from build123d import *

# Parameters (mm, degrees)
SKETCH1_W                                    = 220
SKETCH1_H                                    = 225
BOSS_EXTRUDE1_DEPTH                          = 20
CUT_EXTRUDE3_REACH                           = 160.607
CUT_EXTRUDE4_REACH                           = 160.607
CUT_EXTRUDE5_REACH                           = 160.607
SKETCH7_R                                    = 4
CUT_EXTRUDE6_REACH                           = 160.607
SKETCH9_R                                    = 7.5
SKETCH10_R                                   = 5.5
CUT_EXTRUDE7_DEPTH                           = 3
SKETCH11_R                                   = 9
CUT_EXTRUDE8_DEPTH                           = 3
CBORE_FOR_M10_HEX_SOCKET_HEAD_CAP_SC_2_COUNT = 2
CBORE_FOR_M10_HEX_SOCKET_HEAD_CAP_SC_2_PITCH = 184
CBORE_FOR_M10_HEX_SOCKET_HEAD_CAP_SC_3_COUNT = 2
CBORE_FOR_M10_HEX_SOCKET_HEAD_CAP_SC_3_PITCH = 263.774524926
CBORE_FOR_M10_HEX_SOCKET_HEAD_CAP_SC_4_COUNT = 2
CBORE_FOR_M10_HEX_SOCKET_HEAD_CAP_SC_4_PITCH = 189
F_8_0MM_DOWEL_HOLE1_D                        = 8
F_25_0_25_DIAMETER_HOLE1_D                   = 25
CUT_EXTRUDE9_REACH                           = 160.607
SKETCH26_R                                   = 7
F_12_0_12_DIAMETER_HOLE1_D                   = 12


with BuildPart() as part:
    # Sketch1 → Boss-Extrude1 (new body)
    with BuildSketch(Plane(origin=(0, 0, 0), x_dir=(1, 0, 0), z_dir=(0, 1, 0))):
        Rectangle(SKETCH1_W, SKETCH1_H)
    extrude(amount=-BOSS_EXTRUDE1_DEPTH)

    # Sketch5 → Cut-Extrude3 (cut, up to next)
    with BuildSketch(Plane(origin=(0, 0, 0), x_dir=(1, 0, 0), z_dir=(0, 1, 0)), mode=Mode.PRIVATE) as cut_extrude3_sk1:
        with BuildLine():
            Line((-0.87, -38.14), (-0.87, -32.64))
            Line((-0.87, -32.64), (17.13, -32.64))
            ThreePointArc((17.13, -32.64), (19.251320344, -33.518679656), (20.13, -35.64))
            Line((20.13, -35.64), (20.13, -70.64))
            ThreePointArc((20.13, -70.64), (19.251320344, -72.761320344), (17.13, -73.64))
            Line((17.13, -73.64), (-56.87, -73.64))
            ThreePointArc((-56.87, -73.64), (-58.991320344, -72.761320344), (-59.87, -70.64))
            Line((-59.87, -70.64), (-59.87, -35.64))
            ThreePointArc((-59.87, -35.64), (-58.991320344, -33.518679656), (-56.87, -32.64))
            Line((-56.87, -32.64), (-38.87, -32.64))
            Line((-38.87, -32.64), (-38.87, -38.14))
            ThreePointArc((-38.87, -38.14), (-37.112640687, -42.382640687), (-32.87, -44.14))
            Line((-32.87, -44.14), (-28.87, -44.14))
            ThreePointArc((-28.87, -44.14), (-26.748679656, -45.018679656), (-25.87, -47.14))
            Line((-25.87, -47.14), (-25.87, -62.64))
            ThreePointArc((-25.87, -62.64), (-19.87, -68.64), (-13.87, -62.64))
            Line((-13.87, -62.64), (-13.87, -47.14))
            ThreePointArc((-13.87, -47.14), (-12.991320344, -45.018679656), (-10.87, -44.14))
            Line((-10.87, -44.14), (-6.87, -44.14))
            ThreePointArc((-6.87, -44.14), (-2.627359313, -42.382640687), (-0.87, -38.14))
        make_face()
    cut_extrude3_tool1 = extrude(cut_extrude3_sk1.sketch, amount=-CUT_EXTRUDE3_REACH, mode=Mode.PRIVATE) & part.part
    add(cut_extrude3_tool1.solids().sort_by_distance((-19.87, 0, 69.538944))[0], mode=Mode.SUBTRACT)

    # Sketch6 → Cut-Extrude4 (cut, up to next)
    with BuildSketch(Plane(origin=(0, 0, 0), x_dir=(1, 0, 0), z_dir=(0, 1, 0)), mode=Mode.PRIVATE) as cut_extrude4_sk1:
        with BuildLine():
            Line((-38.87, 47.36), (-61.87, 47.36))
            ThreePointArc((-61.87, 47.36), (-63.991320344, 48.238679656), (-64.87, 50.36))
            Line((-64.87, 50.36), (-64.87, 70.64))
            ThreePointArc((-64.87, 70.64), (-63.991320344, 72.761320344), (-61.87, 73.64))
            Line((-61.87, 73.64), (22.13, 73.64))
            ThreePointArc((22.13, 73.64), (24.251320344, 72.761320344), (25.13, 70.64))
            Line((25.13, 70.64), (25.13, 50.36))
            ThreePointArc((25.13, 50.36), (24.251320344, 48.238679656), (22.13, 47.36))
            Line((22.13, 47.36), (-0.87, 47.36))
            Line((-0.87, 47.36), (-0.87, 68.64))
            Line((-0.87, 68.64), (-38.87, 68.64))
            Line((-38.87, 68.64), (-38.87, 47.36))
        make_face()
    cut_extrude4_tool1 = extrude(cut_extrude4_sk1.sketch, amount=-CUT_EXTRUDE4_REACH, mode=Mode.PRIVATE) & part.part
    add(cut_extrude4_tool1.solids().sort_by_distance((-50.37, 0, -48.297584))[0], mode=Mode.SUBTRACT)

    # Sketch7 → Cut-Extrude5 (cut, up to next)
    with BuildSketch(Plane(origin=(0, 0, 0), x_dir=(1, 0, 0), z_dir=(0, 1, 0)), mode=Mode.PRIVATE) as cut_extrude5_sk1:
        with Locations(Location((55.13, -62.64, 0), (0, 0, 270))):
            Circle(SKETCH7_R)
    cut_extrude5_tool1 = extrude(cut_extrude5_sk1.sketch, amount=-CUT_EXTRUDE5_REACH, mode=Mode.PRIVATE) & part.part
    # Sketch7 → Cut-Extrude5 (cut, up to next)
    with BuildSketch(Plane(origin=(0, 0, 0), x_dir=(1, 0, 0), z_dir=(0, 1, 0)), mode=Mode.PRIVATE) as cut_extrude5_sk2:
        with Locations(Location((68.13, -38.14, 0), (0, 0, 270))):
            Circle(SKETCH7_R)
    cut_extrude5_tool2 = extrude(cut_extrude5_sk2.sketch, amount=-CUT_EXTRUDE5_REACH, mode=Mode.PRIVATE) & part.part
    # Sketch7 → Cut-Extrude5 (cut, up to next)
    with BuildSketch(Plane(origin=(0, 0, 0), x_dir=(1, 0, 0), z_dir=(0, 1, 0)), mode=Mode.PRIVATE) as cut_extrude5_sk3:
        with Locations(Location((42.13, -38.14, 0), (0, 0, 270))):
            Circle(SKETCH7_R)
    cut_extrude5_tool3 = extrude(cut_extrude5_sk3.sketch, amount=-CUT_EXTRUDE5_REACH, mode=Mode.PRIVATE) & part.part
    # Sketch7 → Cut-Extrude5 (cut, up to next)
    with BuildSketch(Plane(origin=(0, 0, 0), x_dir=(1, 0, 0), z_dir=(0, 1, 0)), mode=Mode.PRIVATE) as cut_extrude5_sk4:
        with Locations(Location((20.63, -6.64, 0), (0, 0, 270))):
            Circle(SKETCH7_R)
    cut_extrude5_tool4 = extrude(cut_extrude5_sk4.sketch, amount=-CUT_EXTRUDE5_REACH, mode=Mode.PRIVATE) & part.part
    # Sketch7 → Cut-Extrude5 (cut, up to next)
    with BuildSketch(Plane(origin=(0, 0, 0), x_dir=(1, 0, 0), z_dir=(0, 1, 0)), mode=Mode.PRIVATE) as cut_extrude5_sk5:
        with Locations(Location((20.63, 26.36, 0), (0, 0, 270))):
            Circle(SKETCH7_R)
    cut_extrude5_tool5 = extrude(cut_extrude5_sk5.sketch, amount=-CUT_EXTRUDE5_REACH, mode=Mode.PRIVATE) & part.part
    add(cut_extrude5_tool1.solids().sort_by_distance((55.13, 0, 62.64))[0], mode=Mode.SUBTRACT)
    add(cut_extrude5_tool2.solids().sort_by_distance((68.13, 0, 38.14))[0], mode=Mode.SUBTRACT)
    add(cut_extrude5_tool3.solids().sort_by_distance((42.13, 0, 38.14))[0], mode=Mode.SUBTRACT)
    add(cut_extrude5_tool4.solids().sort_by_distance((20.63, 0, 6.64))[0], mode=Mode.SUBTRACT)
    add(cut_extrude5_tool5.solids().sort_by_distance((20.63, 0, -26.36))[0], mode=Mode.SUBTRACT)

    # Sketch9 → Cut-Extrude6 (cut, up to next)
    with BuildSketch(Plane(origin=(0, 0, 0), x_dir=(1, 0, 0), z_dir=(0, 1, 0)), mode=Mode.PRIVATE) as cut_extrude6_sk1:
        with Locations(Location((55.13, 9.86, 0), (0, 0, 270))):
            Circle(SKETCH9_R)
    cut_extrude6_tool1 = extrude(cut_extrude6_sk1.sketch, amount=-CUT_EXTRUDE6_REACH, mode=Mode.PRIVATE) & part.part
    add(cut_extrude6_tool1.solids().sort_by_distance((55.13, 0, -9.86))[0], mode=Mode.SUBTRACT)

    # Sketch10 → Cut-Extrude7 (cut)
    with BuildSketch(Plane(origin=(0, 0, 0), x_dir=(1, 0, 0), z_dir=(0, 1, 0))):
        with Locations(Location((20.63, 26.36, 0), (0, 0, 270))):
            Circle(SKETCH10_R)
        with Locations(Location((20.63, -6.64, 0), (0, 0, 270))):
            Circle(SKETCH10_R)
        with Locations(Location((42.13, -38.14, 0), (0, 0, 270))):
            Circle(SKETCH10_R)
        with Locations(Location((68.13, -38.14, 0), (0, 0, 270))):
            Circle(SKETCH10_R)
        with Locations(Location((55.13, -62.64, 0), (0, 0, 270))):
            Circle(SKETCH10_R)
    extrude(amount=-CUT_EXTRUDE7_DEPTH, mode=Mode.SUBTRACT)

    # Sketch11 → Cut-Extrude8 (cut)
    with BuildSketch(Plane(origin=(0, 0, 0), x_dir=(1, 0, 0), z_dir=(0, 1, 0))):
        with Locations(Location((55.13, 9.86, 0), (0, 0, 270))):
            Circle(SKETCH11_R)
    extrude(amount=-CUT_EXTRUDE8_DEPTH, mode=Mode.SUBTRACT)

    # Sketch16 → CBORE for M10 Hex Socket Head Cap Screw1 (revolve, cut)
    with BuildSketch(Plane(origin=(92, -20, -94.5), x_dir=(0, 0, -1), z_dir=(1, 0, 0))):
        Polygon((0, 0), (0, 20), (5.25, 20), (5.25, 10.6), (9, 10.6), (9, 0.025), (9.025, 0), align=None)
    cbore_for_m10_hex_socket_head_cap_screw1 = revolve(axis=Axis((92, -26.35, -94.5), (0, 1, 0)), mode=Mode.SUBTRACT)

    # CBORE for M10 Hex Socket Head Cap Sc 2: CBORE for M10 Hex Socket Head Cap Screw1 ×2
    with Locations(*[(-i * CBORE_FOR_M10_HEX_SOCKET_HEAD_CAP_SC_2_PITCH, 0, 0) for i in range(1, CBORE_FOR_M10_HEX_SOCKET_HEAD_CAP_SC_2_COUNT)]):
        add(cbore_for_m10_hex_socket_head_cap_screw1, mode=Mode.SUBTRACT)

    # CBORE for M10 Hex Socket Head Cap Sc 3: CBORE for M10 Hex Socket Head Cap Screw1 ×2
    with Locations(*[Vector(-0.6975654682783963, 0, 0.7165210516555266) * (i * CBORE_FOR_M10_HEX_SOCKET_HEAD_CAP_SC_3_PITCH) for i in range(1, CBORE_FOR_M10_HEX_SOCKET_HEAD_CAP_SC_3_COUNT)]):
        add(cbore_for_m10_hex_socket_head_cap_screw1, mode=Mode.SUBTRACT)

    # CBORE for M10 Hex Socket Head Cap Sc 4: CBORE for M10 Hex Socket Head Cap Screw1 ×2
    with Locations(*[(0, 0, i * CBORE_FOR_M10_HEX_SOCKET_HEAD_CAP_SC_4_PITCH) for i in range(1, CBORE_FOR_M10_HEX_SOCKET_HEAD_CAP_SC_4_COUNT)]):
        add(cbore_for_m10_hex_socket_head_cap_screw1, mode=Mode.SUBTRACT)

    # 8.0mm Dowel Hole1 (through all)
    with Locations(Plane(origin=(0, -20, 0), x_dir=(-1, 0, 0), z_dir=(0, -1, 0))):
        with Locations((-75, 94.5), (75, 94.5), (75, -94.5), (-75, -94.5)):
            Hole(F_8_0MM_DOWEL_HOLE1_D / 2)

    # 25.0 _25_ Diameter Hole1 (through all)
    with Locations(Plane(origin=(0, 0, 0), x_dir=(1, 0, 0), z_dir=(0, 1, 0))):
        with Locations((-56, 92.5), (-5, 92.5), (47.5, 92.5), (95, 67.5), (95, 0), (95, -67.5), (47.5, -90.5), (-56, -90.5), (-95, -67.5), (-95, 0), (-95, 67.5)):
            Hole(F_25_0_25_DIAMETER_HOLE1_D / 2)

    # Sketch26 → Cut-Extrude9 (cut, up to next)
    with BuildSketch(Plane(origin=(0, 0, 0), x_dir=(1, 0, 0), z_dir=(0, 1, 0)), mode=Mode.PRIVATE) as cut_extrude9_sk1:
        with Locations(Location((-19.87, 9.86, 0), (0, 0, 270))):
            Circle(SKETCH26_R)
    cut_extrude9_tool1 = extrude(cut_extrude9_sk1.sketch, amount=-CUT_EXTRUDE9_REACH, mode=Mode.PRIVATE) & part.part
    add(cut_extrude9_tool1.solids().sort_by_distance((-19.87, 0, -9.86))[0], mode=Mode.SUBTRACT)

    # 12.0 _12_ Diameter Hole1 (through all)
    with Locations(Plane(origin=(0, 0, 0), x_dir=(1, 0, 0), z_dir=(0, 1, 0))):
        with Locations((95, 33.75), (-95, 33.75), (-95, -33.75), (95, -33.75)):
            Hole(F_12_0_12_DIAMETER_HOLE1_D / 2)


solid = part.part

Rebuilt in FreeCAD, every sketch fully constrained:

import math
import FreeCAD as App
import Part
import Sketcher
Q = App.Units.Quantity

doc = App.newDocument("Part")
body = doc.addObject("PartDesign::Body", "Body")

# Sketch on XZ plane
sketch1 = body.newObject("Sketcher::SketchObject", "Sketch")
sketch1.AttachmentSupport = (doc.getObject("XZ_Plane"), [""])
sketch1.MapMode = "FlatFace"
sketch1.addGeometry([
    Part.LineSegment(App.Vector(-110, -112.5, 0), App.Vector(-110, 112.5, 0)),
    Part.LineSegment(App.Vector(-110, 112.5, 0), App.Vector(110, 112.5, 0)),
    Part.LineSegment(App.Vector(110, 112.5, 0), App.Vector(110, -112.5, 0)),
    Part.LineSegment(App.Vector(110, -112.5, 0), App.Vector(-110, -112.5, 0)),
], False)
sketch1.addConstraint([
    Sketcher.Constraint("Coincident", 0, 2, 1, 1),
    Sketcher.Constraint("Coincident", 1, 2, 2, 1),
    Sketcher.Constraint("Coincident", 2, 2, 3, 1),
    Sketcher.Constraint("Coincident", 3, 2, 0, 1),
    Sketcher.Constraint("Vertical", 0),
    Sketcher.Constraint("Horizontal", 1),
    Sketcher.Constraint("Vertical", 2),
    Sketcher.Constraint("Horizontal", 3),
    Sketcher.Constraint("Symmetric", 0, 2, 2, 2, -1, 1),
    Sketcher.Constraint("DistanceX", 1, 1, 1, 2, 220.0),
    Sketcher.Constraint("DistanceY", 0, 1, 0, 2, 225.0),
])
pad1 = body.newObject("PartDesign::Pad", "Pad")
pad1.Profile = sketch1
pad1.Length = 20

# Sketch on XZ plane
sketch2 = body.newObject("Sketcher::SketchObject", "Sketch001")
sketch2.AttachmentSupport = (doc.getObject("XZ_Plane"), [""])
sketch2.MapMode = "FlatFace"
sketch2.addGeometry([
    Part.LineSegment(App.Vector(-0.87, 32.64, 0), App.Vector(-0.87, 38.14, 0)),  # 0
    Part.ArcOfCircle(Part.Circle(App.Vector(-6.87, 38.14, 0), App.Vector(0, 0, 1), 6), math.radians(0), math.radians(90)),  # 1
    Part.LineSegment(App.Vector(-6.87, 44.14, 0), App.Vector(-10.87, 44.14, 0)),  # 2
    Part.ArcOfCircle(Part.Circle(App.Vector(-10.87, 47.14, 0), App.Vector(0, 0, 1), 3), math.radians(180), math.radians(270)),  # 3
    Part.LineSegment(App.Vector(-13.87, 47.14, 0), App.Vector(-13.87, 62.64, 0)),  # 4
    Part.ArcOfCircle(Part.Circle(App.Vector(-19.87, 62.64, 0), App.Vector(0, 0, 1), 6), math.radians(0), math.radians(180)),  # 5
    Part.LineSegment(App.Vector(-25.87, 62.64, 0), App.Vector(-25.87, 47.14, 0)),  # 6
    Part.ArcOfCircle(Part.Circle(App.Vector(-28.87, 47.14, 0), App.Vector(0, 0, 1), 3), math.radians(-90), math.radians(0)),  # 7
    Part.LineSegment(App.Vector(-28.87, 44.14, 0), App.Vector(-32.87, 44.14, 0)),  # 8
    Part.ArcOfCircle(Part.Circle(App.Vector(-32.87, 38.14, 0), App.Vector(0, 0, 1), 6), math.radians(90), math.radians(180)),  # 9
    Part.LineSegment(App.Vector(-38.87, 38.14, 0), App.Vector(-38.87, 32.64, 0)),  # 10
    Part.LineSegment(App.Vector(-38.87, 32.64, 0), App.Vector(-56.87, 32.64, 0)),  # 11
    Part.ArcOfCircle(Part.Circle(App.Vector(-56.87, 35.64, 0), App.Vector(0, 0, 1), 3), math.radians(180), math.radians(270)),  # 12
    Part.LineSegment(App.Vector(-59.87, 35.64, 0), App.Vector(-59.87, 70.64, 0)),  # 13
    Part.ArcOfCircle(Part.Circle(App.Vector(-56.87, 70.64, 0), App.Vector(0, 0, 1), 3), math.radians(90), math.radians(180)),  # 14
    Part.LineSegment(App.Vector(-56.87, 73.64, 0), App.Vector(17.13, 73.64, 0)),  # 15
    Part.ArcOfCircle(Part.Circle(App.Vector(17.13, 70.64, 0), App.Vector(0, 0, 1), 3), math.radians(0), math.radians(90)),  # 16
    Part.LineSegment(App.Vector(20.13, 70.64, 0), App.Vector(20.13, 35.64, 0)),  # 17
    Part.ArcOfCircle(Part.Circle(App.Vector(17.13, 35.64, 0), App.Vector(0, 0, 1), 3), math.radians(-90), math.radians(0)),  # 18
    Part.LineSegment(App.Vector(17.13, 32.64, 0), App.Vector(-0.87, 32.64, 0)),  # 19
], False)
sketch2.addConstraint([
    Sketcher.Constraint("Tangent", 0, 2, 1, 1),
    Sketcher.Constraint("Tangent", 1, 2, 2, 1),
    Sketcher.Constraint("Tangent", 2, 2, 3, 2),
    Sketcher.Constraint("Tangent", 3, 1, 4, 1),
    Sketcher.Constraint("Tangent", 4, 2, 5, 1),
    Sketcher.Constraint("Tangent", 5, 2, 6, 1),
    Sketcher.Constraint("Tangent", 6, 2, 7, 2),
    Sketcher.Constraint("Tangent", 7, 1, 8, 1),
    Sketcher.Constraint("Tangent", 8, 2, 9, 1),
    Sketcher.Constraint("Tangent", 9, 2, 10, 1),
    Sketcher.Constraint("Coincident", 10, 2, 11, 1),
    Sketcher.Constraint("Tangent", 11, 2, 12, 2),
    Sketcher.Constraint("Tangent", 12, 1, 13, 1),
    Sketcher.Constraint("Tangent", 13, 2, 14, 2),
    Sketcher.Constraint("Tangent", 14, 1, 15, 1),
    Sketcher.Constraint("Tangent", 15, 2, 16, 2),
    Sketcher.Constraint("Tangent", 16, 1, 17, 1),
    Sketcher.Constraint("Tangent", 17, 2, 18, 2),
    Sketcher.Constraint("Tangent", 18, 1, 19, 1),
    Sketcher.Constraint("Coincident", 19, 2, 0, 1),
    Sketcher.Constraint("Vertical", 0),
    Sketcher.Constraint("Horizontal", 2),
    Sketcher.Constraint("Vertical", 4),
    Sketcher.Constraint("Vertical", 6),
    Sketcher.Constraint("Horizontal", 8),
    Sketcher.Constraint("Vertical", 10),
    Sketcher.Constraint("Horizontal", 11),
    Sketcher.Constraint("Vertical", 13),
    Sketcher.Constraint("Horizontal", 15),
    Sketcher.Constraint("Vertical", 17),
    Sketcher.Constraint("Horizontal", 19),
    Sketcher.Constraint("Equal", 1, 5),
    Sketcher.Constraint("Equal", 3, 7),
    Sketcher.Constraint("Equal", 5, 9),
    Sketcher.Constraint("Equal", 7, 12),
    Sketcher.Constraint("Equal", 12, 14),
    Sketcher.Constraint("Equal", 14, 16),
    Sketcher.Constraint("Equal", 16, 18),
    Sketcher.Constraint("Horizontal", 3, 3, 7, 3),
    Sketcher.Constraint("Horizontal", 12, 3, 18, 3),
    Sketcher.Constraint("Equal", 2, 8),
    Sketcher.Constraint("Equal", 11, 19),
    Sketcher.Constraint("Radius", 1, 6.0),
    Sketcher.Constraint("Radius", 3, 3.0),
    Sketcher.Constraint("DistanceX", 2, 2, 2, 1, 4.0),
    Sketcher.Constraint("DistanceX", 11, 2, 11, 1, 18.0),
    Sketcher.Constraint("DistanceY", 13, 1, 13, 2, 35.0),
    Sketcher.Constraint("DistanceY", 0, 1, 0, 2, 5.5),
    Sketcher.Constraint("DistanceY", 4, 1, 4, 2, 15.5),
    Sketcher.Constraint("DistanceX", 1, 3, -1, 1, 6.87),
    Sketcher.Constraint("DistanceY", -1, 1, 1, 3, 38.14),
])
pocket1 = body.newObject("PartDesign::Pocket", "Pocket")
pocket1.Profile = sketch2
pocket1.Type = "UpToFirst"
pocket1.Reversed = True

# Sketch on XZ plane
sketch3 = body.newObject("Sketcher::SketchObject", "Sketch002")
sketch3.AttachmentSupport = (doc.getObject("XZ_Plane"), [""])
sketch3.MapMode = "FlatFace"
sketch3.addGeometry([
    Part.LineSegment(App.Vector(-61.87, -47.36, 0), App.Vector(-38.87, -47.36, 0)),  # 0
    Part.LineSegment(App.Vector(-38.87, -47.36, 0), App.Vector(-38.87, -68.64, 0)),  # 1
    Part.LineSegment(App.Vector(-38.87, -68.64, 0), App.Vector(-0.87, -68.64, 0)),  # 2
    Part.LineSegment(App.Vector(-0.87, -68.64, 0), App.Vector(-0.87, -47.36, 0)),  # 3
    Part.LineSegment(App.Vector(-0.87, -47.36, 0), App.Vector(22.13, -47.36, 0)),  # 4
    Part.ArcOfCircle(Part.Circle(App.Vector(22.13, -50.36, 0), App.Vector(0, 0, 1), 3), math.radians(0), math.radians(90)),  # 5
    Part.LineSegment(App.Vector(25.13, -50.36, 0), App.Vector(25.13, -70.64, 0)),  # 6
    Part.ArcOfCircle(Part.Circle(App.Vector(22.13, -70.64, 0), App.Vector(0, 0, 1), 3), math.radians(-90), math.radians(0)),  # 7
    Part.LineSegment(App.Vector(22.13, -73.64, 0), App.Vector(-61.87, -73.64, 0)),  # 8
    Part.ArcOfCircle(Part.Circle(App.Vector(-61.87, -70.64, 0), App.Vector(0, 0, 1), 3), math.radians(180), math.radians(270)),  # 9
    Part.LineSegment(App.Vector(-64.87, -70.64, 0), App.Vector(-64.87, -50.36, 0)),  # 10
    Part.ArcOfCircle(Part.Circle(App.Vector(-61.87, -50.36, 0), App.Vector(0, 0, 1), 3), math.radians(90), math.radians(180)),  # 11
], False)
sketch3.addConstraint([
    Sketcher.Constraint("Coincident", 0, 2, 1, 1),
    Sketcher.Constraint("Coincident", 1, 2, 2, 1),
    Sketcher.Constraint("Coincident", 2, 2, 3, 1),
    Sketcher.Constraint("Coincident", 3, 2, 4, 1),
    Sketcher.Constraint("Tangent", 4, 2, 5, 2),
    Sketcher.Constraint("Tangent", 5, 1, 6, 1),
    Sketcher.Constraint("Tangent", 6, 2, 7, 2),
    Sketcher.Constraint("Tangent", 7, 1, 8, 1),
    Sketcher.Constraint("Tangent", 8, 2, 9, 2),
    Sketcher.Constraint("Tangent", 9, 1, 10, 1),
    Sketcher.Constraint("Tangent", 10, 2, 11, 2),
    Sketcher.Constraint("Tangent", 11, 1, 0, 1),
    Sketcher.Constraint("Horizontal", 0),
    Sketcher.Constraint("Vertical", 1),
    Sketcher.Constraint("Horizontal", 2),
    Sketcher.Constraint("Vertical", 3),
    Sketcher.Constraint("Horizontal", 4),
    Sketcher.Constraint("Vertical", 6),
    Sketcher.Constraint("Horizontal", 8),
    Sketcher.Constraint("Vertical", 10),
    Sketcher.Constraint("Equal", 5, 7),
    Sketcher.Constraint("Equal", 7, 9),
    Sketcher.Constraint("Equal", 9, 11),
    Sketcher.Constraint("Horizontal", 5, 3, 11, 3),
    Sketcher.Constraint("Equal", 0, 4),
    Sketcher.Constraint("Radius", 5, 3.0),
    Sketcher.Constraint("DistanceX", 0, 1, 0, 2, 23.0),
    Sketcher.Constraint("DistanceX", 2, 1, 2, 2, 38.0),
    Sketcher.Constraint("DistanceY", 9, 3, 1, 2, 2.0),
    Sketcher.Constraint("DistanceY", 1, 2, 1, 1, 21.28),
    Sketcher.Constraint("DistanceX", -1, 1, 5, 3, 22.13),
    Sketcher.Constraint("DistanceY", 5, 3, -1, 1, 50.36),
])
pocket2 = body.newObject("PartDesign::Pocket", "Pocket001")
pocket2.Profile = sketch3
pocket2.Type = "UpToFirst"
pocket2.Reversed = True

# Sketch on XZ plane
sketch4 = body.newObject("Sketcher::SketchObject", "Sketch003")
sketch4.AttachmentSupport = (doc.getObject("XZ_Plane"), [""])
sketch4.MapMode = "FlatFace"
sketch4.addGeometry(Part.Circle(App.Vector(55.13, 62.64, 0), App.Vector(0, 0, 1), 4), False)
sketch4.addConstraint([
    Sketcher.Constraint("Diameter", 0, 8.0),
    Sketcher.Constraint("DistanceX", -1, 1, 0, 3, 55.13),
    Sketcher.Constraint("DistanceY", -1, 1, 0, 3, 62.64),
])
pocket3 = body.newObject("PartDesign::Pocket", "Pocket002")
pocket3.Profile = sketch4
pocket3.Type = "UpToFirst"
pocket3.Reversed = True

# Sketch on XZ plane
sketch5 = body.newObject("Sketcher::SketchObject", "Sketch004")
sketch5.AttachmentSupport = (doc.getObject("XZ_Plane"), [""])
sketch5.MapMode = "FlatFace"
sketch5.addGeometry(Part.Circle(App.Vector(68.13, 38.14, 0), App.Vector(0, 0, 1), 4), False)
sketch5.addConstraint([
    Sketcher.Constraint("Diameter", 0, 8.0),
    Sketcher.Constraint("DistanceX", -1, 1, 0, 3, 68.13),
    Sketcher.Constraint("DistanceY", -1, 1, 0, 3, 38.14),
])
pocket4 = body.newObject("PartDesign::Pocket", "Pocket003")
pocket4.Profile = sketch5
pocket4.Type = "UpToFirst"
pocket4.Reversed = True

# Sketch on XZ plane
sketch6 = body.newObject("Sketcher::SketchObject", "Sketch005")
sketch6.AttachmentSupport = (doc.getObject("XZ_Plane"), [""])
sketch6.MapMode = "FlatFace"
sketch6.addGeometry(Part.Circle(App.Vector(42.13, 38.14, 0), App.Vector(0, 0, 1), 4), False)
sketch6.addConstraint([
    Sketcher.Constraint("Diameter", 0, 8.0),
    Sketcher.Constraint("DistanceX", -1, 1, 0, 3, 42.13),
    Sketcher.Constraint("DistanceY", -1, 1, 0, 3, 38.14),
])
pocket5 = body.newObject("PartDesign::Pocket", "Pocket004")
pocket5.Profile = sketch6
pocket5.Type = "UpToFirst"
pocket5.Reversed = True

# Sketch on XZ plane
sketch7 = body.newObject("Sketcher::SketchObject", "Sketch006")
sketch7.AttachmentSupport = (doc.getObject("XZ_Plane"), [""])
sketch7.MapMode = "FlatFace"
sketch7.addGeometry(Part.Circle(App.Vector(20.63, 6.64, 0), App.Vector(0, 0, 1), 4), False)
sketch7.addConstraint([
    Sketcher.Constraint("Diameter", 0, 8.0),
    Sketcher.Constraint("DistanceX", -1, 1, 0, 3, 20.63),
    Sketcher.Constraint("DistanceY", -1, 1, 0, 3, 6.64),
])
pocket6 = body.newObject("PartDesign::Pocket", "Pocket005")
pocket6.Profile = sketch7
pocket6.Type = "UpToFirst"
pocket6.Reversed = True

# Sketch on XZ plane
sketch8 = body.newObject("Sketcher::SketchObject", "Sketch007")
sketch8.AttachmentSupport = (doc.getObject("XZ_Plane"), [""])
sketch8.MapMode = "FlatFace"
sketch8.addGeometry(Part.Circle(App.Vector(20.63, -26.36, 0), App.Vector(0, 0, 1), 4), False)
sketch8.addConstraint([
    Sketcher.Constraint("Diameter", 0, 8.0),
    Sketcher.Constraint("DistanceX", -1, 1, 0, 3, 20.63),
    Sketcher.Constraint("DistanceY", 0, 3, -1, 1, 26.36),
])
pocket7 = body.newObject("PartDesign::Pocket", "Pocket006")
pocket7.Profile = sketch8
pocket7.Type = "UpToFirst"
pocket7.Reversed = True

# Sketch on XZ plane
sketch9 = body.newObject("Sketcher::SketchObject", "Sketch008")
sketch9.AttachmentSupport = (doc.getObject("XZ_Plane"), [""])
sketch9.MapMode = "FlatFace"
sketch9.addGeometry(Part.Circle(App.Vector(55.13, -9.86, 0), App.Vector(0, 0, 1), 7.5), False)
sketch9.addConstraint([
    Sketcher.Constraint("Diameter", 0, 15.0),
    Sketcher.Constraint("DistanceX", -1, 1, 0, 3, 55.13),
    Sketcher.Constraint("DistanceY", 0, 3, -1, 1, 9.86),
])
pocket8 = body.newObject("PartDesign::Pocket", "Pocket007")
pocket8.Profile = sketch9
pocket8.Type = "UpToFirst"
pocket8.Reversed = True

# Sketch on XZ plane
sketch10 = body.newObject("Sketcher::SketchObject", "Sketch009")
sketch10.AttachmentSupport = (doc.getObject("XZ_Plane"), [""])
sketch10.MapMode = "FlatFace"
sketch10.addGeometry([
    Part.Circle(App.Vector(20.63, -26.36, 0), App.Vector(0, 0, 1), 5.5),  # 0
    Part.Circle(App.Vector(20.63, 6.64, 0), App.Vector(0, 0, 1), 5.5),  # 1
    Part.Circle(App.Vector(42.13, 38.14, 0), App.Vector(0, 0, 1), 5.5),  # 2
    Part.Circle(App.Vector(68.13, 38.14, 0), App.Vector(0, 0, 1), 5.5),  # 3
    Part.Circle(App.Vector(55.13, 62.64, 0), App.Vector(0, 0, 1), 5.5),  # 4
], False)
sketch10.addConstraint([
    Sketcher.Constraint("Equal", 0, 1),
    Sketcher.Constraint("Equal", 1, 2),
    Sketcher.Constraint("Equal", 2, 3),
    Sketcher.Constraint("Equal", 3, 4),
    Sketcher.Constraint("Horizontal", 2, 3, 3, 3),
    Sketcher.Constraint("Vertical", 0, 3, 1, 3),
    Sketcher.Constraint("Diameter", 0, 11.0),
    Sketcher.Constraint("DistanceY", 0, 3, 1, 3, 33.0),
    Sketcher.Constraint("DistanceX", 2, 3, 3, 3, 26.0),
    Sketcher.Constraint("DistanceX", 4, 3, 3, 3, 13.0),
    Sketcher.Constraint("DistanceY", 1, 3, 4, 3, 56.0),
    Sketcher.Constraint("DistanceX", 1, 3, 2, 3, 21.5),
    Sketcher.Constraint("DistanceY", 1, 3, 2, 3, 31.5),
    Sketcher.Constraint("DistanceX", -1, 1, 0, 3, 20.63),
    Sketcher.Constraint("DistanceY", 0, 3, -1, 1, 26.36),
])
pocket9 = body.newObject("PartDesign::Pocket", "Pocket008")
pocket9.Profile = sketch10
pocket9.Length = 3
pocket9.Reversed = True

# Sketch on XZ plane
sketch11 = body.newObject("Sketcher::SketchObject", "Sketch010")
sketch11.AttachmentSupport = (doc.getObject("XZ_Plane"), [""])
sketch11.MapMode = "FlatFace"
sketch11.addGeometry(Part.Circle(App.Vector(55.13, -9.86, 0), App.Vector(0, 0, 1), 9), False)
sketch11.addConstraint([
    Sketcher.Constraint("Diameter", 0, 18.0),
    Sketcher.Constraint("DistanceX", -1, 1, 0, 3, 55.13),
    Sketcher.Constraint("DistanceY", 0, 3, -1, 1, 9.86),
])
pocket10 = body.newObject("PartDesign::Pocket", "Pocket009")
pocket10.Profile = sketch11
pocket10.Length = 3
pocket10.Reversed = True

# Sketch on YZ plane
sketch12 = body.newObject("Sketcher::SketchObject", "Sketch011")
sketch12.AttachmentSupport = (doc.getObject("YZ_Plane"), [""])
sketch12.MapMode = "FlatFace"
sketch12.AttachmentOffset = App.Placement(App.Vector(0, 0, 92), App.Rotation())
sketch12.addGeometry([
    Part.LineSegment(App.Vector(0, -94.5, 0), App.Vector(-20, -94.5, 0)),  # 0
    Part.LineSegment(App.Vector(-20, -94.5, 0), App.Vector(-20, -103.525, 0)),  # 1
    Part.LineSegment(App.Vector(-20, -103.525, 0), App.Vector(-19.975, -103.5, 0)),  # 2
    Part.LineSegment(App.Vector(-19.975, -103.5, 0), App.Vector(-9.4, -103.5, 0)),  # 3
    Part.LineSegment(App.Vector(-9.4, -103.5, 0), App.Vector(-9.4, -99.75, 0)),  # 4
    Part.LineSegment(App.Vector(-9.4, -99.75, 0), App.Vector(0, -99.75, 0)),  # 5
    Part.LineSegment(App.Vector(0, -99.75, 0), App.Vector(0, -94.5, 0)),  # 6
], False)
sketch12.addGeometry(Part.LineSegment(App.Vector(-20, -94.5, 0), App.Vector(0, -94.5, 0)), True)  # axis
sketch12.addConstraint([
    Sketcher.Constraint("Coincident", 0, 2, 1, 1),
    Sketcher.Constraint("Coincident", 1, 2, 2, 1),
    Sketcher.Constraint("Coincident", 2, 2, 3, 1),
    Sketcher.Constraint("Coincident", 3, 2, 4, 1),
    Sketcher.Constraint("Coincident", 4, 2, 5, 1),
    Sketcher.Constraint("Coincident", 5, 2, 6, 1),
    Sketcher.Constraint("Coincident", 6, 2, 0, 1),
    Sketcher.Constraint("Horizontal", 0),
    Sketcher.Constraint("Vertical", 1),
    Sketcher.Constraint("Horizontal", 3),
    Sketcher.Constraint("Vertical", 4),
    Sketcher.Constraint("Horizontal", 5),
    Sketcher.Constraint("Vertical", 6),
    Sketcher.Constraint("Horizontal", 7),
    Sketcher.Constraint("Coincident", 7, 1, 0, 2),
    Sketcher.Constraint("PointOnObject", 5, 2, -2),
    Sketcher.Constraint("PointOnObject", 7, 2, -2),
    Sketcher.Constraint("DistanceX", 0, 2, 0, 1, 20.0),
    Sketcher.Constraint("Angle", 2, Q("45 deg")),
    Sketcher.Constraint("DistanceX", 5, 1, 5, 2, 9.4),
    Sketcher.Constraint("DistanceY", 2, 2, 0, 2, 9.0),
    Sketcher.Constraint("DistanceY", 4, 1, 4, 2, 3.75),
    Sketcher.Constraint("DistanceY", 0, 2, -1, 1, 94.5),
    Sketcher.Constraint("DistanceX", 3, 1, 3, 2, 10.575),
])
groove = body.newObject("PartDesign::Groove", "Groove")
groove.Profile = sketch12
groove.ReferenceAxis = (sketch12, ["Axis0"])
groove.Angle = 360
doc.recompute()

linearpattern = body.newObject("PartDesign::LinearPattern", "LinearPattern")
linearpattern.Originals = [groove]
linearpattern.Direction = (doc.getObject("X_Axis"), [""])
linearpattern.Mode = "offset"
linearpattern.Offset = 184
linearpattern.Occurrences = 2
linearpattern.Reversed = True
body.Tip = linearpattern
doc.recompute()

datumline = body.newObject("PartDesign::Line", "DatumLine")
datumline.Placement = App.Placement(App.Vector(0, 0, 0), App.Rotation(App.Vector(0, 0, 1), App.Vector(-0.697565468, 0, 0.716521052)))
linearpattern2 = body.newObject("PartDesign::LinearPattern", "LinearPattern001")
linearpattern2.Originals = [groove]
linearpattern2.Direction = (datumline, [""])
linearpattern2.Mode = "offset"
linearpattern2.Offset = 263.774525
linearpattern2.Occurrences = 2
body.Tip = linearpattern2
doc.recompute()

linearpattern3 = body.newObject("PartDesign::LinearPattern", "LinearPattern002")
linearpattern3.Originals = [groove]
linearpattern3.Direction = (doc.getObject("Z_Axis"), [""])
linearpattern3.Mode = "offset"
linearpattern3.Offset = 189
linearpattern3.Occurrences = 2
body.Tip = linearpattern3

# Sketch on XZ plane
sketch13 = body.newObject("Sketcher::SketchObject", "Sketch012")
sketch13.AttachmentSupport = (doc.getObject("XZ_Plane"), [""])
sketch13.MapMode = "FlatFace"
sketch13.AttachmentOffset = App.Placement(App.Vector(0, 0, 20), App.Rotation())
sketch13.addGeometry([
    Part.Circle(App.Vector(75, -94.5, 0), App.Vector(0, 0, 1), 4),
    Part.Circle(App.Vector(-75, -94.5, 0), App.Vector(0, 0, 1), 4),
    Part.Circle(App.Vector(-75, 94.5, 0), App.Vector(0, 0, 1), 4),
    Part.Circle(App.Vector(75, 94.5, 0), App.Vector(0, 0, 1), 4),
], False)
sketch13.addConstraint([
    Sketcher.Constraint("Equal", 0, 1),
    Sketcher.Constraint("Equal", 1, 2),
    Sketcher.Constraint("Equal", 2, 3),
    Sketcher.Constraint("Symmetric", 0, 3, 2, 3, -1, 1),
    Sketcher.Constraint("Symmetric", 1, 3, 3, 3, -1, 1),
    Sketcher.Constraint("Symmetric", 0, 3, 1, 3, -2),
    Sketcher.Constraint("Diameter", 0, 8.0),
    Sketcher.Constraint("DistanceX", -1, 1, 0, 3, 75.0),
    Sketcher.Constraint("DistanceY", 1, 3, 2, 3, 189.0),
])
doc.recompute()
hole = body.newObject("PartDesign::Hole", "Hole")
hole.Profile = sketch13
hole.ThreadType = "None"
hole.Diameter = 8
hole.DepthType = "ThroughAll"

# Sketch on XZ plane
sketch14 = body.newObject("Sketcher::SketchObject", "Sketch013")
sketch14.AttachmentSupport = (doc.getObject("XZ_Plane"), [""])
sketch14.MapMode = "FlatFace"
sketch14.addGeometry([
    Part.Circle(App.Vector(-56, -92.5, 0), App.Vector(0, 0, 1), 12.5),  # 0
    Part.Circle(App.Vector(-5, -92.5, 0), App.Vector(0, 0, 1), 12.5),  # 1
    Part.Circle(App.Vector(47.5, -92.5, 0), App.Vector(0, 0, 1), 12.5),  # 2
    Part.Circle(App.Vector(95, -67.5, 0), App.Vector(0, 0, 1), 12.5),  # 3
    Part.Circle(App.Vector(95, 0, 0), App.Vector(0, 0, 1), 12.5),  # 4
    Part.Circle(App.Vector(95, 67.5, 0), App.Vector(0, 0, 1), 12.5),  # 5
    Part.Circle(App.Vector(47.5, 90.5, 0), App.Vector(0, 0, 1), 12.5),  # 6
    Part.Circle(App.Vector(-56, 90.5, 0), App.Vector(0, 0, 1), 12.5),  # 7
    Part.Circle(App.Vector(-95, 67.5, 0), App.Vector(0, 0, 1), 12.5),  # 8
    Part.Circle(App.Vector(-95, 0, 0), App.Vector(0, 0, 1), 12.5),  # 9
    Part.Circle(App.Vector(-95, -67.5, 0), App.Vector(0, 0, 1), 12.5),  # 10
], False)
sketch14.addConstraint([
    Sketcher.Constraint("Equal", 0, 1),
    Sketcher.Constraint("Equal", 1, 2),
    Sketcher.Constraint("Equal", 2, 3),
    Sketcher.Constraint("Equal", 3, 4),
    Sketcher.Constraint("Equal", 4, 5),
    Sketcher.Constraint("Equal", 5, 6),
    Sketcher.Constraint("Equal", 6, 7),
    Sketcher.Constraint("Equal", 7, 8),
    Sketcher.Constraint("Equal", 8, 9),
    Sketcher.Constraint("Equal", 9, 10),
    Sketcher.Constraint("Symmetric", 3, 3, 8, 3, -1, 1),
    Sketcher.Constraint("Symmetric", 4, 3, 9, 3, -1, 1),
    Sketcher.Constraint("Symmetric", 5, 3, 10, 3, -1, 1),
    Sketcher.Constraint("Symmetric", 5, 3, 8, 3, -2),
    Sketcher.Constraint("PointOnObject", 4, 3, -1),
    Sketcher.Constraint("Horizontal", 0, 3, 1, 3),
    Sketcher.Constraint("Horizontal", 1, 3, 2, 3),
    Sketcher.Constraint("Horizontal", 6, 3, 7, 3),
    Sketcher.Constraint("Vertical", 3, 3, 4, 3),
    Sketcher.Constraint("Vertical", 2, 3, 6, 3),
    Sketcher.Constraint("Vertical", 0, 3, 7, 3),
    Sketcher.Constraint("Diameter", 0, 25.0),
    Sketcher.Constraint("DistanceX", 0, 3, -1, 1, 56.0),
    Sketcher.Constraint("DistanceX", 1, 3, -1, 1, 5.0),
    Sketcher.Constraint("DistanceX", -1, 1, 3, 3, 95.0),
    Sketcher.Constraint("DistanceY", 2, 3, 3, 3, 25.0),
    Sketcher.Constraint("DistanceY", 3, 3, 5, 3, 135.0),
    Sketcher.Constraint("DistanceY", 5, 3, 6, 3, 23.0),
    Sketcher.Constraint("DistanceX", -1, 1, 2, 3, 47.5),
])
doc.recompute()
hole2 = body.newObject("PartDesign::Hole", "Hole001")
hole2.Profile = sketch14
hole2.ThreadType = "None"
hole2.Diameter = 25
hole2.DepthType = "ThroughAll"
hole2.Reversed = True

# Sketch on XZ plane
sketch15 = body.newObject("Sketcher::SketchObject", "Sketch014")
sketch15.AttachmentSupport = (doc.getObject("XZ_Plane"), [""])
sketch15.MapMode = "FlatFace"
sketch15.addGeometry(Part.Circle(App.Vector(-19.87, -9.86, 0), App.Vector(0, 0, 1), 7), False)
sketch15.addConstraint([
    Sketcher.Constraint("Diameter", 0, 14.0),
    Sketcher.Constraint("DistanceX", 0, 3, -1, 1, 19.87),
    Sketcher.Constraint("DistanceY", 0, 3, -1, 1, 9.86),
])
pocket11 = body.newObject("PartDesign::Pocket", "Pocket010")
pocket11.Profile = sketch15
pocket11.Type = "UpToFirst"
pocket11.Reversed = True

# Sketch on XZ plane
sketch16 = body.newObject("Sketcher::SketchObject", "Sketch015")
sketch16.AttachmentSupport = (doc.getObject("XZ_Plane"), [""])
sketch16.MapMode = "FlatFace"
sketch16.addGeometry([
    Part.Circle(App.Vector(95, -33.75, 0), App.Vector(0, 0, 1), 6),
    Part.Circle(App.Vector(-95, -33.75, 0), App.Vector(0, 0, 1), 6),
    Part.Circle(App.Vector(-95, 33.75, 0), App.Vector(0, 0, 1), 6),
    Part.Circle(App.Vector(95, 33.75, 0), App.Vector(0, 0, 1), 6),
], False)
sketch16.addConstraint([
    Sketcher.Constraint("Equal", 0, 1),
    Sketcher.Constraint("Equal", 1, 2),
    Sketcher.Constraint("Equal", 2, 3),
    Sketcher.Constraint("Symmetric", 0, 3, 2, 3, -1, 1),
    Sketcher.Constraint("Symmetric", 1, 3, 3, 3, -1, 1),
    Sketcher.Constraint("Symmetric", 0, 3, 1, 3, -2),
    Sketcher.Constraint("Diameter", 0, 12.0),
    Sketcher.Constraint("DistanceX", -1, 1, 0, 3, 95.0),
    Sketcher.Constraint("DistanceY", 1, 3, 2, 3, 67.5),
])
doc.recompute()
hole3 = body.newObject("PartDesign::Hole", "Hole002")
hole3.Profile = sketch16
hole3.ThreadType = "None"
hole3.Diameter = 12
hole3.DepthType = "ThroughAll"
hole3.Reversed = True

doc.recompute()
